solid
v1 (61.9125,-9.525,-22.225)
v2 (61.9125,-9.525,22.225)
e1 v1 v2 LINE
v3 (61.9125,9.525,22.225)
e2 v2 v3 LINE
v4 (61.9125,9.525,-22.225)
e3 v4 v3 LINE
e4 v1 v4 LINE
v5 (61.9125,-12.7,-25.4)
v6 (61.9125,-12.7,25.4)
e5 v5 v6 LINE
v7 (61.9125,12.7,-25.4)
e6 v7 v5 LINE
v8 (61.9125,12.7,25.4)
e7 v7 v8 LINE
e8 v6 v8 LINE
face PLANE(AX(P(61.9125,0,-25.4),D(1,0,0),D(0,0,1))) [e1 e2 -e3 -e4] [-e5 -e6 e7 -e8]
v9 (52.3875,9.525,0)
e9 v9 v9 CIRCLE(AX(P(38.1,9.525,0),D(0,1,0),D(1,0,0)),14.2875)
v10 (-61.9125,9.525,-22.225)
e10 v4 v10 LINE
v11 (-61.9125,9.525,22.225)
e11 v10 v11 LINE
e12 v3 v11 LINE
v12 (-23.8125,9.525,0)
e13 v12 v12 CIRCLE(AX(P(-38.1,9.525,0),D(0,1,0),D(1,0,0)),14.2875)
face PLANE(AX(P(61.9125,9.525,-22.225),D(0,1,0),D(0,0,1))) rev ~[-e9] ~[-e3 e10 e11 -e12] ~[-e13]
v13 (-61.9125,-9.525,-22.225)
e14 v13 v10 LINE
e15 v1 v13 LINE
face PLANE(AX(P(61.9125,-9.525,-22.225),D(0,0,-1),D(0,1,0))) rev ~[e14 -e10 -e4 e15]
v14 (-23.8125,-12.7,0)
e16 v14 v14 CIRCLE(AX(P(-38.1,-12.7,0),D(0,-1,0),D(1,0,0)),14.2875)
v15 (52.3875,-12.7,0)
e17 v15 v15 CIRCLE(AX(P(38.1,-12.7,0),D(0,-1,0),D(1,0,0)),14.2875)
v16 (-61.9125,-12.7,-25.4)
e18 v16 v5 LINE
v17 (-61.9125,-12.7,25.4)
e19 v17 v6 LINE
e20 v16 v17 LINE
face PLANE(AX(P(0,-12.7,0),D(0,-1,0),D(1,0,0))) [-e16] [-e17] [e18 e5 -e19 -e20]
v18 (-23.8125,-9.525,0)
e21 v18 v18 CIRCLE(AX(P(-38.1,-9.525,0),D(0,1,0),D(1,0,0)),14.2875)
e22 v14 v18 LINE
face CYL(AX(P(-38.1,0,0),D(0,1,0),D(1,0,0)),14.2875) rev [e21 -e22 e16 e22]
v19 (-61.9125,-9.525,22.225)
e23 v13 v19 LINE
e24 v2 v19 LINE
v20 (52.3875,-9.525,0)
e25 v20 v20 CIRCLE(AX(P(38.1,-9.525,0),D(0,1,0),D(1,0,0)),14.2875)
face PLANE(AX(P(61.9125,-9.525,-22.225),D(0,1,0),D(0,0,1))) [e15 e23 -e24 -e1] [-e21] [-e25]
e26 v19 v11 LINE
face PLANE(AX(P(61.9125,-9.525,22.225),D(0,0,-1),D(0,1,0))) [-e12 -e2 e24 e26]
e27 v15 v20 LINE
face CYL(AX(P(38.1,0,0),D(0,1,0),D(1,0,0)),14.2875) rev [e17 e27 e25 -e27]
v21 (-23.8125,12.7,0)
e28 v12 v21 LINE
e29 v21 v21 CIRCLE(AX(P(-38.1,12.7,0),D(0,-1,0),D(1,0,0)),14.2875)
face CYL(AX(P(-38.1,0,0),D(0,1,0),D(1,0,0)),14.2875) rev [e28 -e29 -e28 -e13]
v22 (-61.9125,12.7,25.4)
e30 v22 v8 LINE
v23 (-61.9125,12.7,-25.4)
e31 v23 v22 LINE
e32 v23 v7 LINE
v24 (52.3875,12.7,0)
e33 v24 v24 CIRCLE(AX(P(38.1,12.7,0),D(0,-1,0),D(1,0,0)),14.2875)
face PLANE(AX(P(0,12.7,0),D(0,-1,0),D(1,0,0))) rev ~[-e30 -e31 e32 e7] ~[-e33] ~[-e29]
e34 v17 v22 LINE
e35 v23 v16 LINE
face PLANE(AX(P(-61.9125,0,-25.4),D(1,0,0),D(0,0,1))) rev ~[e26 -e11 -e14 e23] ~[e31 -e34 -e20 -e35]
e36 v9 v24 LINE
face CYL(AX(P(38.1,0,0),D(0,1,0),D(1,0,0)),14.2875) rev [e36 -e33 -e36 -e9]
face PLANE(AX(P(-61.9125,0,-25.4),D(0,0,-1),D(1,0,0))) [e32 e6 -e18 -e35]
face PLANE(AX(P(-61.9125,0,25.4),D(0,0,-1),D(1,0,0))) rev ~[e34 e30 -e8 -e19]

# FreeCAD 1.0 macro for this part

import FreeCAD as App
import Part
import Sketcher
from FreeCAD import Vector
Q = App.Units.Quantity

doc = App.newDocument("Part")
body = doc.addObject("PartDesign::Body", "Body")

# Sketch on XZ plane
sketch1 = body.newObject("Sketcher::SketchObject", "Sketch")
sketch1.AttachmentSupport = (doc.getObject("XZ_Plane"), [""])
sketch1.MapMode = "FlatFace"
sketch1.addGeometry(Part.LineSegment(Vector(-61.9125, 25.4, 0), Vector(-61.9125, -25.4, 0)), False)
sketch1.addGeometry(Part.LineSegment(Vector(-61.9125, -25.4, 0), Vector(61.9125, -25.4, 0)), False)
sketch1.addGeometry(Part.LineSegment(Vector(61.9125, -25.4, 0), Vector(61.9125, 25.4, 0)), False)
sketch1.addGeometry(Part.LineSegment(Vector(61.9125, 25.4, 0), Vector(-61.9125, 25.4, 0)), False)
sketch1.addGeometry(Part.Circle(Vector(-38.1, 0, 0), Vector(0, 0, 1), 14.2875), False)
sketch1.addGeometry(Part.Circle(Vector(38.1, 0, 0), Vector(0, 0, 1), 14.2875), False)
sketch1.addConstraint(Sketcher.Constraint("Coincident", 0, 2, 1, 1))
sketch1.addConstraint(Sketcher.Constraint("Coincident", 1, 2, 2, 1))
sketch1.addConstraint(Sketcher.Constraint("Coincident", 2, 2, 3, 1))
sketch1.addConstraint(Sketcher.Constraint("Coincident", 3, 2, 0, 1))
sketch1.addConstraint(Sketcher.Constraint("Vertical", 0))
sketch1.addConstraint(Sketcher.Constraint("Horizontal", 1))
sketch1.addConstraint(Sketcher.Constraint("Vertical", 2))
sketch1.addConstraint(Sketcher.Constraint("Horizontal", 3))
sketch1.addConstraint(Sketcher.Constraint("Equal", 4, 5))
sketch1.addConstraint(Sketcher.Constraint("Symmetric", 4, 3, 5, 3, -1, 1))
sketch1.addConstraint(Sketcher.Constraint("Symmetric", 0, 2, 2, 2, -1, 1))
sketch1.addConstraint(Sketcher.Constraint("PointOnObject", 4, 3, -1))
sketch1.addConstraint(Sketcher.Constraint("DistanceY", 0, 2, 0, 1, Q("2 in")))
sketch1.addConstraint(Sketcher.Constraint("Diameter", 4, Q("1.125 in")))
sketch1.addConstraint(Sketcher.Constraint("DistanceX", 4, 3, 5, 3, Q("3 in")))
sketch1.addConstraint(Sketcher.Constraint("DistanceX", 1, 1, 1, 2, Q("4.875 in")))
pad1 = body.newObject("PartDesign::Pad", "Pad")
pad1.Profile = sketch1
pad1.Length = Q("1 in")
pad1.Midplane = True

# Sketch on YZ plane
sketch2 = body.newObject("Sketcher::SketchObject", "Sketch001")
sketch2.AttachmentSupport = (doc.getObject("YZ_Plane"), [""])
sketch2.MapMode = "FlatFace"
sketch2.AttachmentOffset = App.Placement(Vector(0, 0, 2.4375 * 25.4), App.Rotation())
sketch2.addGeometry(Part.LineSegment(Vector(-9.525, 22.225, 0), Vector(-9.525, -22.225, 0)), False)
sketch2.addGeometry(Part.LineSegment(Vector(-9.525, -22.225, 0), Vector(9.525, -22.225, 0)), False)
sketch2.addGeometry(Part.LineSegment(Vector(9.525, -22.225, 0), Vector(9.525, 22.225, 0)), False)
sketch2.addGeometry(Part.LineSegment(Vector(9.525, 22.225, 0), Vector(-9.525, 22.225, 0)), False)
sketch2.addConstraint(Sketcher.Constraint("Coincident", 0, 2, 1, 1))
sketch2.addConstraint(Sketcher.Constraint("Coincident", 1, 2, 2, 1))
sketch2.addConstraint(Sketcher.Constraint("Coincident", 2, 2, 3, 1))
sketch2.addConstraint(Sketcher.Constraint("Coincident", 3, 2, 0, 1))
sketch2.addConstraint(Sketcher.Constraint("Vertical", 0))
sketch2.addConstraint(Sketcher.Constraint("Horizontal", 1))
sketch2.addConstraint(Sketcher.Constraint("Vertical", 2))
sketch2.addConstraint(Sketcher.Constraint("Horizontal", 3))
sketch2.addConstraint(Sketcher.Constraint("Symmetric", 0, 2, 2, 2, -1, 1))
sketch2.addConstraint(Sketcher.Constraint("DistanceX", 1, 1, 1, 2, Q("0.75 in")))
sketch2.addConstraint(Sketcher.Constraint("DistanceY", 0, 2, 0, 1, Q("1.75 in")))
pocket1 = body.newObject("PartDesign::Pocket", "Pocket")
pocket1.Profile = sketch2
pocket1.Type = "ThroughAll"

doc.recompute()
